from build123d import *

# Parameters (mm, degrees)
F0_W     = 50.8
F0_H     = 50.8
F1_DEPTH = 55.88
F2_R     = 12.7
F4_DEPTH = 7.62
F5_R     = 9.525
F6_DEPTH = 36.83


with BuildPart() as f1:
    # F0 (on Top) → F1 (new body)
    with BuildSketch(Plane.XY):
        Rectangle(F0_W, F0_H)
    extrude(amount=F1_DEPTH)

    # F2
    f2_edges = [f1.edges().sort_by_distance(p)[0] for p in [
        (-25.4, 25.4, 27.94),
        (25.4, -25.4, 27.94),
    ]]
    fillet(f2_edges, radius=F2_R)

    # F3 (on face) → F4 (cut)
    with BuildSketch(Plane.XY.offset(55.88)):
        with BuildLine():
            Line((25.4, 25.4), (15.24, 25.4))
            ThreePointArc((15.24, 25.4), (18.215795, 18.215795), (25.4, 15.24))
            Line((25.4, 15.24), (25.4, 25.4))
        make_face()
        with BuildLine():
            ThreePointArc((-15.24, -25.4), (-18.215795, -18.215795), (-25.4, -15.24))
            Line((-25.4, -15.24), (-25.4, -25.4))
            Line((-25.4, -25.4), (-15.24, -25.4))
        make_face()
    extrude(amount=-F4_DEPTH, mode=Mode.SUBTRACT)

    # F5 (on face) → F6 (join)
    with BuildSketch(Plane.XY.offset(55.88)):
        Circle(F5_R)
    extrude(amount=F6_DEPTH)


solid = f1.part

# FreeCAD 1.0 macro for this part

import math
import FreeCAD as App
import Part
import Sketcher
from FreeCAD import Vector
Q = App.Units.Quantity


def edges_at(feature, points):
    """Names of the edges that pass closest to the given points."""
    edges = feature.Shape.Edges
    near = lambda p: min(range(len(edges)), key=lambda i: edges[i].distToShape(Part.Vertex(*p))[0])
    return sorted({f"Edge{near(p) + 1}" for p in points})


def add_polygon(sketch, points):
    """Adds a closed chain of lines whose ends are joined by coincident constraints."""
    first, n = sketch.GeometryCount, len(points)
    for a, b in zip(points, points[1:] + points[:1]):
        sketch.addGeometry(Part.LineSegment(App.Vector(*a, 0), App.Vector(*b, 0)), False)
    for i in range(n):
        sketch.addConstraint(Sketcher.Constraint("Coincident", first + i, 2, first + (i + 1) % n, 1))

doc = App.newDocument("Part")
body = doc.addObject("PartDesign::Body", "Body")

# Sketch on XY plane
sketch1 = doc.addObject("Sketcher::SketchObject", "Sketch")
body.addObject(sketch1)
sketch1.AttachmentSupport = (doc.XY_Plane, [""])
sketch1.MapMode = "FlatFace"
add_polygon(sketch1, [(-25.4, 25.4), (-25.4, -25.4), (25.4, -25.4), (25.4, 25.4)])  # lines 0-3
sketch1.addConstraint(Sketcher.Constraint("Vertical", 0))
sketch1.addConstraint(Sketcher.Constraint("Horizontal", 1))
sketch1.addConstraint(Sketcher.Constraint("Vertical", 2))
sketch1.addConstraint(Sketcher.Constraint("Horizontal", 3))
sketch1.addConstraint(Sketcher.Constraint("Symmetric", 0, 2, 2, 2, -1, 1))
sketch1.addConstraint(Sketcher.Constraint("Equal", 3, 0))
sketch1.addConstraint(Sketcher.Constraint("DistanceX", 1, 1, 1, 2, Q("2 in")))
pad1 = doc.addObject("PartDesign::Pad", "Pad")
body.addObject(pad1)
pad1.Profile = sketch1
pad1.Length = Q("2.2 in")
doc.recompute()

fillet = doc.addObject("PartDesign::Fillet", "Fillet")
body.addObject(fillet)
fillet.Base = (pad1, edges_at(pad1, [(-25.4, 25.4, 27.94), (25.4, -25.4, 27.94)]))
fillet.Radius = Q("0.5 in")

# Sketch on XY plane
sketch2 = doc.addObject("Sketcher::SketchObject", "Sketch001")
body.addObject(sketch2)
sketch2.AttachmentSupport = (doc.XY_Plane, [""])
sketch2.MapMode = "FlatFace"
sketch2.AttachmentOffset = App.Placement(Vector(0, 0, 2.2 * 25.4), App.Rotation())
sketch2.addGeometry(Part.LineSegment(Vector(25.4, 25.4, 0), Vector(15.24, 25.4, 0)), False)
sketch2.addGeometry(Part.ArcOfCircle(Part.Circle(Vector(25.4, 25.4, 0), Vector(0, 0, 1), 10.16), math.radians(179.999998), math.radians(270.000002)), False)
sketch2.addGeometry(Part.LineSegment(Vector(25.4, 15.24, 0), Vector(25.4, 25.4, 0)), False)
sketch2.addGeometry(Part.ArcOfCircle(Part.Circle(Vector(-25.4, -25.4, 0), Vector(0, 0, 1), 10.16), math.radians(-0.000002), math.radians(90.000002)), False)
sketch2.addGeometry(Part.LineSegment(Vector(-25.4, -15.24, 0), Vector(-25.4, -25.4, 0)), False)
sketch2.addGeometry(Part.LineSegment(Vector(-25.4, -25.4, 0), Vector(-15.24, -25.4, 0)), False)
sketch2.addConstraint(Sketcher.Constraint("Coincident", 0, 2, 1, 1))
sketch2.addConstraint(Sketcher.Constraint("Coincident", 1, 2, 2, 1))
sketch2.addConstraint(Sketcher.Constraint("Coincident", 2, 2, 0, 1))
sketch2.addConstraint(Sketcher.Constraint("Coincident", 3, 2, 4, 1))
sketch2.addConstraint(Sketcher.Constraint("Coincident", 4, 2, 5, 1))
sketch2.addConstraint(Sketcher.Constraint("Coincident", 5, 2, 3, 1))
sketch2.addConstraint(Sketcher.Constraint("Horizontal", 0))
sketch2.addConstraint(Sketcher.Constraint("Vertical", 2))
sketch2.addConstraint(Sketcher.Constraint("Vertical", 4))
sketch2.addConstraint(Sketcher.Constraint("Horizontal", 5))
sketch2.addConstraint(Sketcher.Constraint("Coincident", 2, 2, 1, 3))
sketch2.addConstraint(Sketcher.Constraint("Coincident", 4, 2, 3, 3))
sketch2.addConstraint(Sketcher.Constraint("Equal", 1, 3))
sketch2.addConstraint(Sketcher.Constraint("Symmetric", 1, 3, 3, 3, -1, 1))
sketch2.addConstraint(Sketcher.Constraint("Radius", 1, Q("0.4 in")))
sketch2.addConstraint(Sketcher.Constraint("DistanceX", -1, 1, 1, 3, Q("1 in")))
sketch2.addConstraint(Sketcher.Constraint("DistanceY", -1, 1, 1, 3, Q("1 in")))
pocket1 = doc.addObject("PartDesign::Pocket", "Pocket")
body.addObject(pocket1)
pocket1.Profile = sketch2
pocket1.Length = Q("0.3 in")

# Sketch on XY plane
sketch3 = doc.addObject("Sketcher::SketchObject", "Sketch002")
body.addObject(sketch3)
sketch3.AttachmentSupport = (doc.XY_Plane, [""])
sketch3.MapMode = "FlatFace"
sketch3.AttachmentOffset = App.Placement(Vector(0, 0, 2.2 * 25.4), App.Rotation())
sketch3.addGeometry(Part.Circle(Vector(0, 0, 0), Vector(0, 0, 1), 9.525), False)
sketch3.addConstraint(Sketcher.Constraint("Coincident", 0, 3, -1, 1))
sketch3.addConstraint(Sketcher.Constraint("Diameter", 0, Q("0.75 in")))
pad2 = doc.addObject("PartDesign::Pad", "Pad001")
body.addObject(pad2)
pad2.Profile = sketch3
pad2.Length = Q("1.45 in")

doc.recompute()
